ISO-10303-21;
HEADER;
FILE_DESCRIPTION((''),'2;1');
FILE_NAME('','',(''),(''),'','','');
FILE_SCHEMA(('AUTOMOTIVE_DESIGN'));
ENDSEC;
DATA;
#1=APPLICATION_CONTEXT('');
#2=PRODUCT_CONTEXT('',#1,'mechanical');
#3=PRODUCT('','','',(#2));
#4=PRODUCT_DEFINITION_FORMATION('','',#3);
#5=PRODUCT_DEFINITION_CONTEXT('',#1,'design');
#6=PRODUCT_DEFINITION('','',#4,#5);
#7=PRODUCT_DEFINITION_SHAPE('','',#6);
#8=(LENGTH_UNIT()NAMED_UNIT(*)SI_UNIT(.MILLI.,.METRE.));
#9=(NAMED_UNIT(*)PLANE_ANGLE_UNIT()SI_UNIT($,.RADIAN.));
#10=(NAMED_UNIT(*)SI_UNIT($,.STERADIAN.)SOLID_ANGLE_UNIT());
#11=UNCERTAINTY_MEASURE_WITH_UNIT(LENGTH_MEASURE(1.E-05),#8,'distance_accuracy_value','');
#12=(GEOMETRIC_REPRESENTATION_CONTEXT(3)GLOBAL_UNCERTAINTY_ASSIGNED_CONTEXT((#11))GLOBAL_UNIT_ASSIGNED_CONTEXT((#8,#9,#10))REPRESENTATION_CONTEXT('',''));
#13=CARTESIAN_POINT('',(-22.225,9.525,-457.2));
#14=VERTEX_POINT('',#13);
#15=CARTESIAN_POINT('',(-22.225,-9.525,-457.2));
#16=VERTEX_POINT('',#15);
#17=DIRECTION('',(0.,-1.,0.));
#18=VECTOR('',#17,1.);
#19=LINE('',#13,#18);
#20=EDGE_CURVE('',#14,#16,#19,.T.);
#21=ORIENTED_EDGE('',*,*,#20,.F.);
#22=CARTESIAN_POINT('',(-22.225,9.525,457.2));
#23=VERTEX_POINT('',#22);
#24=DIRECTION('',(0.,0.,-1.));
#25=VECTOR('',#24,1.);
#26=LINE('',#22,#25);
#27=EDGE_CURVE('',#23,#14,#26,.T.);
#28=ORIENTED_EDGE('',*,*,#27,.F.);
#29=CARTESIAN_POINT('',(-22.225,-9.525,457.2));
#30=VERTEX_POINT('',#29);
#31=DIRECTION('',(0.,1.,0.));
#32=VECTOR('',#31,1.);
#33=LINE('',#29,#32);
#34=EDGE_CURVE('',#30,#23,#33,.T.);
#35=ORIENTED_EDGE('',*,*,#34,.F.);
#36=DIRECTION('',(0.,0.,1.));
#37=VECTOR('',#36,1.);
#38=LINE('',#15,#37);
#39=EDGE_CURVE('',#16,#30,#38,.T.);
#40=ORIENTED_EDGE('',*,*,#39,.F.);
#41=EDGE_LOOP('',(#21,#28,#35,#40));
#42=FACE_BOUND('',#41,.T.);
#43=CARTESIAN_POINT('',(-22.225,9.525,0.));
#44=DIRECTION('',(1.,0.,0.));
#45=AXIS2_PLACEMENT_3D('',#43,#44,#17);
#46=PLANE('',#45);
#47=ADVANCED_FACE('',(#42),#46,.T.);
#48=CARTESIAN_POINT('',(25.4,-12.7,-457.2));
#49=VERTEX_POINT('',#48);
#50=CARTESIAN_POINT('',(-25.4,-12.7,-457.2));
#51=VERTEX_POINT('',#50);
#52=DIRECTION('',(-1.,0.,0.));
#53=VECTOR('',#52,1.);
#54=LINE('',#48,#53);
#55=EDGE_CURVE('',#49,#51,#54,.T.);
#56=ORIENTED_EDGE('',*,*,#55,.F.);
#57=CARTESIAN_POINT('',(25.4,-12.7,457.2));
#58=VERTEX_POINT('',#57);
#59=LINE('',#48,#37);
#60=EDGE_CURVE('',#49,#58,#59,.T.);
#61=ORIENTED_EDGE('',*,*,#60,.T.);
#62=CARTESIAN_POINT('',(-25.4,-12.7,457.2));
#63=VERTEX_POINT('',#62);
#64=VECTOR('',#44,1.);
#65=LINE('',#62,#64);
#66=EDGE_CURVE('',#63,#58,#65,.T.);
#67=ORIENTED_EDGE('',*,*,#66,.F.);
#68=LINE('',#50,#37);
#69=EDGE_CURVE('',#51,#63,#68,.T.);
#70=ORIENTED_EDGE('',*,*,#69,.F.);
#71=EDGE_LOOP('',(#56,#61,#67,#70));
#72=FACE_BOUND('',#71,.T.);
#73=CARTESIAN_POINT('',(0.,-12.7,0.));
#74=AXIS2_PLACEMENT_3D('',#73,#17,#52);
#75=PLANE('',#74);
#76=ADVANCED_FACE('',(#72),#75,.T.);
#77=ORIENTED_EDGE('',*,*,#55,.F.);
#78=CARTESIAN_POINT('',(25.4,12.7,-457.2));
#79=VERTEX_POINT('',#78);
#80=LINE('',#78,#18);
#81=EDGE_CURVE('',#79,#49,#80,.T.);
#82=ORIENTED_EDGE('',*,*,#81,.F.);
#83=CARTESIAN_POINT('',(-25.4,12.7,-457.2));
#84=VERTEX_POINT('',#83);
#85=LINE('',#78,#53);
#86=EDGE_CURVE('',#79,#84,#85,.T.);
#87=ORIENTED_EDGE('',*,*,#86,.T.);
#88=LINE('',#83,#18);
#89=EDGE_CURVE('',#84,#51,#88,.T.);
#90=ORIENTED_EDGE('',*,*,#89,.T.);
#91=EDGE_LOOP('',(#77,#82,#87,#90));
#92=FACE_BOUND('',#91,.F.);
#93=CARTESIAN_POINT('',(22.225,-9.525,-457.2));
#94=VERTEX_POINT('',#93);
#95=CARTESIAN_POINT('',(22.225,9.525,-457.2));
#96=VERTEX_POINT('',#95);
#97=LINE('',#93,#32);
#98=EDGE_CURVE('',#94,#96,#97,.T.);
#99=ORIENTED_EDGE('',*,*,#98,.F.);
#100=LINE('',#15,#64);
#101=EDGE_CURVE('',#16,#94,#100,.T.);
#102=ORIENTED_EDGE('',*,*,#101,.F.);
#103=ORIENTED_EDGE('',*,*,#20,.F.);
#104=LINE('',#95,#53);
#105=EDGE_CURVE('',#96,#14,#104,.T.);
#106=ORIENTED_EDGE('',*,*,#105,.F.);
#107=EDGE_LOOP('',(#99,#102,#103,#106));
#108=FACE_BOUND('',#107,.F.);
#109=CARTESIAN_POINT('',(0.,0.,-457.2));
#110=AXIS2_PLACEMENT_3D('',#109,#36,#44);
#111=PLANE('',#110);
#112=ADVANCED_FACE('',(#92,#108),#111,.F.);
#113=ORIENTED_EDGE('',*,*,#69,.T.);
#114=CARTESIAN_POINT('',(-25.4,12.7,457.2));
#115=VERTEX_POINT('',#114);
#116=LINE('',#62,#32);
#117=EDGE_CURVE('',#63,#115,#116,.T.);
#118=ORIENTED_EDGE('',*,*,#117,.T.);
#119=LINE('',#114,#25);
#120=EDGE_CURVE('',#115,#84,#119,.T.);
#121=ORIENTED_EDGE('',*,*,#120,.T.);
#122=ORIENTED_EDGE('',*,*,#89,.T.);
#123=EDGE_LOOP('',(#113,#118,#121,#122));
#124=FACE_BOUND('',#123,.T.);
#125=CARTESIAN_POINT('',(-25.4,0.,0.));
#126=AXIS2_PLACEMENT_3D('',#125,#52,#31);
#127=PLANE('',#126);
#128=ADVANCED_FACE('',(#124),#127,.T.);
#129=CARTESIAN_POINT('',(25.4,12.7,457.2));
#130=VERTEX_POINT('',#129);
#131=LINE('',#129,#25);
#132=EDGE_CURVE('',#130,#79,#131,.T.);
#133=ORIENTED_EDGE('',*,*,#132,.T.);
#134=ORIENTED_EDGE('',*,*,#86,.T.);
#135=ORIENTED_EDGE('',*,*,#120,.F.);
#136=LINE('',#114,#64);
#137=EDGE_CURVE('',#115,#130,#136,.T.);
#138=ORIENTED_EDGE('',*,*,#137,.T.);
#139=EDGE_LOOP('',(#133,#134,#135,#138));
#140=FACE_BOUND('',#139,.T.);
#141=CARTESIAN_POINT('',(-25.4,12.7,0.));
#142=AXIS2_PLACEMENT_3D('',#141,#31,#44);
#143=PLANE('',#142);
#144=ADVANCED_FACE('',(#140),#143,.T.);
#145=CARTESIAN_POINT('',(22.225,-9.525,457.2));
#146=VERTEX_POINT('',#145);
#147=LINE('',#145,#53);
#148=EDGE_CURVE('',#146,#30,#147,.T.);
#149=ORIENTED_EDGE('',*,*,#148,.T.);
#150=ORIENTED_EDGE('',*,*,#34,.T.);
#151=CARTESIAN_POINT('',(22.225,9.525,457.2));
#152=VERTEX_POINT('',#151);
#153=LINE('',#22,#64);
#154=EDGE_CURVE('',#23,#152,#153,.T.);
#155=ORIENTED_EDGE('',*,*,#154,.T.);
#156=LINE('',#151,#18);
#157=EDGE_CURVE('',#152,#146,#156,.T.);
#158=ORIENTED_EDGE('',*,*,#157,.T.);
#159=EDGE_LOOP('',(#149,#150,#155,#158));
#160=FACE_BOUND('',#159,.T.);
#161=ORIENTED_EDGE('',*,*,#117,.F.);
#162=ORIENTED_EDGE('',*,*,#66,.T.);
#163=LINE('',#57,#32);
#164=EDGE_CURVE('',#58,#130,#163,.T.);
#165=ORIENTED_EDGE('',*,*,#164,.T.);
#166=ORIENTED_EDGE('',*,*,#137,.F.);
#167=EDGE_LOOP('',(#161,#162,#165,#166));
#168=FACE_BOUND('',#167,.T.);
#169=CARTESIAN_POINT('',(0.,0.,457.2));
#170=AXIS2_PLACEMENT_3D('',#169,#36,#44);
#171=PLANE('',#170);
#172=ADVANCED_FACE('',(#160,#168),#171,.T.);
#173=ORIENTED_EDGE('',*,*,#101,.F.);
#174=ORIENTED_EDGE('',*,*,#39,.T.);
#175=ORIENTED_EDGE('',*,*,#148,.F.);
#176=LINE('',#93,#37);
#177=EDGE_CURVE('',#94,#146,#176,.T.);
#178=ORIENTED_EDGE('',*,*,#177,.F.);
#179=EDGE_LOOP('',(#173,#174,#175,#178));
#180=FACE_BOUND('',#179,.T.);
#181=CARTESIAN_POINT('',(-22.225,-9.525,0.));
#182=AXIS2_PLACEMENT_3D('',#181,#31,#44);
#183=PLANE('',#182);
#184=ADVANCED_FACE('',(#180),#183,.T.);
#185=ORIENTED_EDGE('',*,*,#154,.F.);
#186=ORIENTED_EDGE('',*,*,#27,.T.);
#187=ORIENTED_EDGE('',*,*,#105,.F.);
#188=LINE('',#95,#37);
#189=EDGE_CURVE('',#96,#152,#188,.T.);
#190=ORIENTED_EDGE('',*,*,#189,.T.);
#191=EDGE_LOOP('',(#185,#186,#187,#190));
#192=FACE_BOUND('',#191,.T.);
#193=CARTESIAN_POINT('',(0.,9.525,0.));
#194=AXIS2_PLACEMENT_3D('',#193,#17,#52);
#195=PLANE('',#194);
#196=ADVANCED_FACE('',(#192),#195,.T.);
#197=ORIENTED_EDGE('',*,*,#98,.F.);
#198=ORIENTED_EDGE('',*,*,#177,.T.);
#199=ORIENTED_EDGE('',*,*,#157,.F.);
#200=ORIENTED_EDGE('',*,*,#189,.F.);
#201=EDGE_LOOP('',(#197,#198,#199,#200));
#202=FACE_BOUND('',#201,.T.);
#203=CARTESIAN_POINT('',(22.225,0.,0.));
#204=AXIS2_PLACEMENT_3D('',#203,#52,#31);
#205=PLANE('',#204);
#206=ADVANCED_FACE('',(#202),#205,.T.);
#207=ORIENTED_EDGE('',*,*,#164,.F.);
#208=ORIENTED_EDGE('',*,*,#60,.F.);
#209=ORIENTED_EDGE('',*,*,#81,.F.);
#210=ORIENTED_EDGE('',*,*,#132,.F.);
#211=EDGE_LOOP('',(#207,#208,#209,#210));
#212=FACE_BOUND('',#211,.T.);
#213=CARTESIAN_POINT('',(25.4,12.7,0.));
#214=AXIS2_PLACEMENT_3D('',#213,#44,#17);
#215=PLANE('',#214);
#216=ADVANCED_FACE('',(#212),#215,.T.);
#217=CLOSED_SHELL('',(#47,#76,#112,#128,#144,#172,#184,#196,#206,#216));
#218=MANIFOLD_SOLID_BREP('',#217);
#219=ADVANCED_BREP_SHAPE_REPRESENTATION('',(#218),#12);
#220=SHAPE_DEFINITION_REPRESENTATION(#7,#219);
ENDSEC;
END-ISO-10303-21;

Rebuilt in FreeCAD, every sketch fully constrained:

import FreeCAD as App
import Part
import Sketcher

V = App.Vector
Q = App.Units.Quantity


def add_polygon(sketch, points):
    """Adds a closed chain of lines whose ends are joined by coincident constraints."""
    first, n = sketch.GeometryCount, len(points)
    for a, b in zip(points, points[1:] + points[:1]):
        sketch.addGeometry(Part.LineSegment(App.Vector(*a, 0), App.Vector(*b, 0)), False)
    for i in range(n):
        sketch.addConstraint(Sketcher.Constraint("Coincident", first + i, 2, first + (i + 1) % n, 1))

doc = App.newDocument("Part")
params = doc.addObject("Spreadsheet::Sheet", "Params")
for row, (alias, value) in enumerate([
    ("sketch1_width", "2 in"),
    ("sketch1_height", "1 in"),
    ("pad1_length", "36 in"),
], start=1):
    params.set(f"A{row}", alias)
    params.set(f"B{row}", "=" + value)
    params.setAlias(f"B{row}", alias)

body = doc.addObject("PartDesign::Body", "Body")

# Sketch on XY plane
sketch1 = body.newObject("Sketcher::SketchObject", "Sketch")
sketch1.AttachmentSupport = (doc.getObject("XY_Plane"), [""])
sketch1.MapMode = "FlatFace"
add_polygon(sketch1, [(-25, 13), (-25, -13), (25, -13), (25, 13)])  # lines 0-3
add_polygon(sketch1, [(-22, 10), (22, 10), (22, -10), (-22, -10)])  # lines 4-7
sketch1.addConstraint(Sketcher.Constraint("Vertical", 0))
sketch1.addConstraint(Sketcher.Constraint("Horizontal", 1))
sketch1.addConstraint(Sketcher.Constraint("Vertical", 2))
sketch1.addConstraint(Sketcher.Constraint("Horizontal", 3))
sketch1.addConstraint(Sketcher.Constraint("Horizontal", 4))
sketch1.addConstraint(Sketcher.Constraint("Vertical", 5))
sketch1.addConstraint(Sketcher.Constraint("Horizontal", 6))
sketch1.addConstraint(Sketcher.Constraint("Vertical", 7))
sketch1.addConstraint(Sketcher.Constraint("Symmetric", 0, 2, 2, 2, -1, 1))
sketch1.addConstraint(Sketcher.Constraint("Symmetric", 4, 2, 6, 2, -1, 1))
sketch1.addConstraint(Sketcher.Constraint("DistanceX", 1, 1, 1, 2, Q("2 in")))
sketch1.addConstraint(Sketcher.Constraint("DistanceY", 0, 2, 0, 1, Q("1 in")))
sketch1.addConstraint(Sketcher.Constraint("DistanceX", 4, 2, 2, 2, Q("0.125 in")))
sketch1.addConstraint(Sketcher.Constraint("DistanceY", 4, 2, 2, 2, Q("0.125 in")))
sketch1.setExpression("Constraints[18]", "Params.sketch1_width")
sketch1.setExpression("Constraints[19]", "Params.sketch1_height")
pad1 = body.newObject("PartDesign::Pad", "Pad")
pad1.Profile = sketch1
pad1.setExpression("Length", "Params.pad1_length")
pad1.Midplane = True

doc.recompute()
